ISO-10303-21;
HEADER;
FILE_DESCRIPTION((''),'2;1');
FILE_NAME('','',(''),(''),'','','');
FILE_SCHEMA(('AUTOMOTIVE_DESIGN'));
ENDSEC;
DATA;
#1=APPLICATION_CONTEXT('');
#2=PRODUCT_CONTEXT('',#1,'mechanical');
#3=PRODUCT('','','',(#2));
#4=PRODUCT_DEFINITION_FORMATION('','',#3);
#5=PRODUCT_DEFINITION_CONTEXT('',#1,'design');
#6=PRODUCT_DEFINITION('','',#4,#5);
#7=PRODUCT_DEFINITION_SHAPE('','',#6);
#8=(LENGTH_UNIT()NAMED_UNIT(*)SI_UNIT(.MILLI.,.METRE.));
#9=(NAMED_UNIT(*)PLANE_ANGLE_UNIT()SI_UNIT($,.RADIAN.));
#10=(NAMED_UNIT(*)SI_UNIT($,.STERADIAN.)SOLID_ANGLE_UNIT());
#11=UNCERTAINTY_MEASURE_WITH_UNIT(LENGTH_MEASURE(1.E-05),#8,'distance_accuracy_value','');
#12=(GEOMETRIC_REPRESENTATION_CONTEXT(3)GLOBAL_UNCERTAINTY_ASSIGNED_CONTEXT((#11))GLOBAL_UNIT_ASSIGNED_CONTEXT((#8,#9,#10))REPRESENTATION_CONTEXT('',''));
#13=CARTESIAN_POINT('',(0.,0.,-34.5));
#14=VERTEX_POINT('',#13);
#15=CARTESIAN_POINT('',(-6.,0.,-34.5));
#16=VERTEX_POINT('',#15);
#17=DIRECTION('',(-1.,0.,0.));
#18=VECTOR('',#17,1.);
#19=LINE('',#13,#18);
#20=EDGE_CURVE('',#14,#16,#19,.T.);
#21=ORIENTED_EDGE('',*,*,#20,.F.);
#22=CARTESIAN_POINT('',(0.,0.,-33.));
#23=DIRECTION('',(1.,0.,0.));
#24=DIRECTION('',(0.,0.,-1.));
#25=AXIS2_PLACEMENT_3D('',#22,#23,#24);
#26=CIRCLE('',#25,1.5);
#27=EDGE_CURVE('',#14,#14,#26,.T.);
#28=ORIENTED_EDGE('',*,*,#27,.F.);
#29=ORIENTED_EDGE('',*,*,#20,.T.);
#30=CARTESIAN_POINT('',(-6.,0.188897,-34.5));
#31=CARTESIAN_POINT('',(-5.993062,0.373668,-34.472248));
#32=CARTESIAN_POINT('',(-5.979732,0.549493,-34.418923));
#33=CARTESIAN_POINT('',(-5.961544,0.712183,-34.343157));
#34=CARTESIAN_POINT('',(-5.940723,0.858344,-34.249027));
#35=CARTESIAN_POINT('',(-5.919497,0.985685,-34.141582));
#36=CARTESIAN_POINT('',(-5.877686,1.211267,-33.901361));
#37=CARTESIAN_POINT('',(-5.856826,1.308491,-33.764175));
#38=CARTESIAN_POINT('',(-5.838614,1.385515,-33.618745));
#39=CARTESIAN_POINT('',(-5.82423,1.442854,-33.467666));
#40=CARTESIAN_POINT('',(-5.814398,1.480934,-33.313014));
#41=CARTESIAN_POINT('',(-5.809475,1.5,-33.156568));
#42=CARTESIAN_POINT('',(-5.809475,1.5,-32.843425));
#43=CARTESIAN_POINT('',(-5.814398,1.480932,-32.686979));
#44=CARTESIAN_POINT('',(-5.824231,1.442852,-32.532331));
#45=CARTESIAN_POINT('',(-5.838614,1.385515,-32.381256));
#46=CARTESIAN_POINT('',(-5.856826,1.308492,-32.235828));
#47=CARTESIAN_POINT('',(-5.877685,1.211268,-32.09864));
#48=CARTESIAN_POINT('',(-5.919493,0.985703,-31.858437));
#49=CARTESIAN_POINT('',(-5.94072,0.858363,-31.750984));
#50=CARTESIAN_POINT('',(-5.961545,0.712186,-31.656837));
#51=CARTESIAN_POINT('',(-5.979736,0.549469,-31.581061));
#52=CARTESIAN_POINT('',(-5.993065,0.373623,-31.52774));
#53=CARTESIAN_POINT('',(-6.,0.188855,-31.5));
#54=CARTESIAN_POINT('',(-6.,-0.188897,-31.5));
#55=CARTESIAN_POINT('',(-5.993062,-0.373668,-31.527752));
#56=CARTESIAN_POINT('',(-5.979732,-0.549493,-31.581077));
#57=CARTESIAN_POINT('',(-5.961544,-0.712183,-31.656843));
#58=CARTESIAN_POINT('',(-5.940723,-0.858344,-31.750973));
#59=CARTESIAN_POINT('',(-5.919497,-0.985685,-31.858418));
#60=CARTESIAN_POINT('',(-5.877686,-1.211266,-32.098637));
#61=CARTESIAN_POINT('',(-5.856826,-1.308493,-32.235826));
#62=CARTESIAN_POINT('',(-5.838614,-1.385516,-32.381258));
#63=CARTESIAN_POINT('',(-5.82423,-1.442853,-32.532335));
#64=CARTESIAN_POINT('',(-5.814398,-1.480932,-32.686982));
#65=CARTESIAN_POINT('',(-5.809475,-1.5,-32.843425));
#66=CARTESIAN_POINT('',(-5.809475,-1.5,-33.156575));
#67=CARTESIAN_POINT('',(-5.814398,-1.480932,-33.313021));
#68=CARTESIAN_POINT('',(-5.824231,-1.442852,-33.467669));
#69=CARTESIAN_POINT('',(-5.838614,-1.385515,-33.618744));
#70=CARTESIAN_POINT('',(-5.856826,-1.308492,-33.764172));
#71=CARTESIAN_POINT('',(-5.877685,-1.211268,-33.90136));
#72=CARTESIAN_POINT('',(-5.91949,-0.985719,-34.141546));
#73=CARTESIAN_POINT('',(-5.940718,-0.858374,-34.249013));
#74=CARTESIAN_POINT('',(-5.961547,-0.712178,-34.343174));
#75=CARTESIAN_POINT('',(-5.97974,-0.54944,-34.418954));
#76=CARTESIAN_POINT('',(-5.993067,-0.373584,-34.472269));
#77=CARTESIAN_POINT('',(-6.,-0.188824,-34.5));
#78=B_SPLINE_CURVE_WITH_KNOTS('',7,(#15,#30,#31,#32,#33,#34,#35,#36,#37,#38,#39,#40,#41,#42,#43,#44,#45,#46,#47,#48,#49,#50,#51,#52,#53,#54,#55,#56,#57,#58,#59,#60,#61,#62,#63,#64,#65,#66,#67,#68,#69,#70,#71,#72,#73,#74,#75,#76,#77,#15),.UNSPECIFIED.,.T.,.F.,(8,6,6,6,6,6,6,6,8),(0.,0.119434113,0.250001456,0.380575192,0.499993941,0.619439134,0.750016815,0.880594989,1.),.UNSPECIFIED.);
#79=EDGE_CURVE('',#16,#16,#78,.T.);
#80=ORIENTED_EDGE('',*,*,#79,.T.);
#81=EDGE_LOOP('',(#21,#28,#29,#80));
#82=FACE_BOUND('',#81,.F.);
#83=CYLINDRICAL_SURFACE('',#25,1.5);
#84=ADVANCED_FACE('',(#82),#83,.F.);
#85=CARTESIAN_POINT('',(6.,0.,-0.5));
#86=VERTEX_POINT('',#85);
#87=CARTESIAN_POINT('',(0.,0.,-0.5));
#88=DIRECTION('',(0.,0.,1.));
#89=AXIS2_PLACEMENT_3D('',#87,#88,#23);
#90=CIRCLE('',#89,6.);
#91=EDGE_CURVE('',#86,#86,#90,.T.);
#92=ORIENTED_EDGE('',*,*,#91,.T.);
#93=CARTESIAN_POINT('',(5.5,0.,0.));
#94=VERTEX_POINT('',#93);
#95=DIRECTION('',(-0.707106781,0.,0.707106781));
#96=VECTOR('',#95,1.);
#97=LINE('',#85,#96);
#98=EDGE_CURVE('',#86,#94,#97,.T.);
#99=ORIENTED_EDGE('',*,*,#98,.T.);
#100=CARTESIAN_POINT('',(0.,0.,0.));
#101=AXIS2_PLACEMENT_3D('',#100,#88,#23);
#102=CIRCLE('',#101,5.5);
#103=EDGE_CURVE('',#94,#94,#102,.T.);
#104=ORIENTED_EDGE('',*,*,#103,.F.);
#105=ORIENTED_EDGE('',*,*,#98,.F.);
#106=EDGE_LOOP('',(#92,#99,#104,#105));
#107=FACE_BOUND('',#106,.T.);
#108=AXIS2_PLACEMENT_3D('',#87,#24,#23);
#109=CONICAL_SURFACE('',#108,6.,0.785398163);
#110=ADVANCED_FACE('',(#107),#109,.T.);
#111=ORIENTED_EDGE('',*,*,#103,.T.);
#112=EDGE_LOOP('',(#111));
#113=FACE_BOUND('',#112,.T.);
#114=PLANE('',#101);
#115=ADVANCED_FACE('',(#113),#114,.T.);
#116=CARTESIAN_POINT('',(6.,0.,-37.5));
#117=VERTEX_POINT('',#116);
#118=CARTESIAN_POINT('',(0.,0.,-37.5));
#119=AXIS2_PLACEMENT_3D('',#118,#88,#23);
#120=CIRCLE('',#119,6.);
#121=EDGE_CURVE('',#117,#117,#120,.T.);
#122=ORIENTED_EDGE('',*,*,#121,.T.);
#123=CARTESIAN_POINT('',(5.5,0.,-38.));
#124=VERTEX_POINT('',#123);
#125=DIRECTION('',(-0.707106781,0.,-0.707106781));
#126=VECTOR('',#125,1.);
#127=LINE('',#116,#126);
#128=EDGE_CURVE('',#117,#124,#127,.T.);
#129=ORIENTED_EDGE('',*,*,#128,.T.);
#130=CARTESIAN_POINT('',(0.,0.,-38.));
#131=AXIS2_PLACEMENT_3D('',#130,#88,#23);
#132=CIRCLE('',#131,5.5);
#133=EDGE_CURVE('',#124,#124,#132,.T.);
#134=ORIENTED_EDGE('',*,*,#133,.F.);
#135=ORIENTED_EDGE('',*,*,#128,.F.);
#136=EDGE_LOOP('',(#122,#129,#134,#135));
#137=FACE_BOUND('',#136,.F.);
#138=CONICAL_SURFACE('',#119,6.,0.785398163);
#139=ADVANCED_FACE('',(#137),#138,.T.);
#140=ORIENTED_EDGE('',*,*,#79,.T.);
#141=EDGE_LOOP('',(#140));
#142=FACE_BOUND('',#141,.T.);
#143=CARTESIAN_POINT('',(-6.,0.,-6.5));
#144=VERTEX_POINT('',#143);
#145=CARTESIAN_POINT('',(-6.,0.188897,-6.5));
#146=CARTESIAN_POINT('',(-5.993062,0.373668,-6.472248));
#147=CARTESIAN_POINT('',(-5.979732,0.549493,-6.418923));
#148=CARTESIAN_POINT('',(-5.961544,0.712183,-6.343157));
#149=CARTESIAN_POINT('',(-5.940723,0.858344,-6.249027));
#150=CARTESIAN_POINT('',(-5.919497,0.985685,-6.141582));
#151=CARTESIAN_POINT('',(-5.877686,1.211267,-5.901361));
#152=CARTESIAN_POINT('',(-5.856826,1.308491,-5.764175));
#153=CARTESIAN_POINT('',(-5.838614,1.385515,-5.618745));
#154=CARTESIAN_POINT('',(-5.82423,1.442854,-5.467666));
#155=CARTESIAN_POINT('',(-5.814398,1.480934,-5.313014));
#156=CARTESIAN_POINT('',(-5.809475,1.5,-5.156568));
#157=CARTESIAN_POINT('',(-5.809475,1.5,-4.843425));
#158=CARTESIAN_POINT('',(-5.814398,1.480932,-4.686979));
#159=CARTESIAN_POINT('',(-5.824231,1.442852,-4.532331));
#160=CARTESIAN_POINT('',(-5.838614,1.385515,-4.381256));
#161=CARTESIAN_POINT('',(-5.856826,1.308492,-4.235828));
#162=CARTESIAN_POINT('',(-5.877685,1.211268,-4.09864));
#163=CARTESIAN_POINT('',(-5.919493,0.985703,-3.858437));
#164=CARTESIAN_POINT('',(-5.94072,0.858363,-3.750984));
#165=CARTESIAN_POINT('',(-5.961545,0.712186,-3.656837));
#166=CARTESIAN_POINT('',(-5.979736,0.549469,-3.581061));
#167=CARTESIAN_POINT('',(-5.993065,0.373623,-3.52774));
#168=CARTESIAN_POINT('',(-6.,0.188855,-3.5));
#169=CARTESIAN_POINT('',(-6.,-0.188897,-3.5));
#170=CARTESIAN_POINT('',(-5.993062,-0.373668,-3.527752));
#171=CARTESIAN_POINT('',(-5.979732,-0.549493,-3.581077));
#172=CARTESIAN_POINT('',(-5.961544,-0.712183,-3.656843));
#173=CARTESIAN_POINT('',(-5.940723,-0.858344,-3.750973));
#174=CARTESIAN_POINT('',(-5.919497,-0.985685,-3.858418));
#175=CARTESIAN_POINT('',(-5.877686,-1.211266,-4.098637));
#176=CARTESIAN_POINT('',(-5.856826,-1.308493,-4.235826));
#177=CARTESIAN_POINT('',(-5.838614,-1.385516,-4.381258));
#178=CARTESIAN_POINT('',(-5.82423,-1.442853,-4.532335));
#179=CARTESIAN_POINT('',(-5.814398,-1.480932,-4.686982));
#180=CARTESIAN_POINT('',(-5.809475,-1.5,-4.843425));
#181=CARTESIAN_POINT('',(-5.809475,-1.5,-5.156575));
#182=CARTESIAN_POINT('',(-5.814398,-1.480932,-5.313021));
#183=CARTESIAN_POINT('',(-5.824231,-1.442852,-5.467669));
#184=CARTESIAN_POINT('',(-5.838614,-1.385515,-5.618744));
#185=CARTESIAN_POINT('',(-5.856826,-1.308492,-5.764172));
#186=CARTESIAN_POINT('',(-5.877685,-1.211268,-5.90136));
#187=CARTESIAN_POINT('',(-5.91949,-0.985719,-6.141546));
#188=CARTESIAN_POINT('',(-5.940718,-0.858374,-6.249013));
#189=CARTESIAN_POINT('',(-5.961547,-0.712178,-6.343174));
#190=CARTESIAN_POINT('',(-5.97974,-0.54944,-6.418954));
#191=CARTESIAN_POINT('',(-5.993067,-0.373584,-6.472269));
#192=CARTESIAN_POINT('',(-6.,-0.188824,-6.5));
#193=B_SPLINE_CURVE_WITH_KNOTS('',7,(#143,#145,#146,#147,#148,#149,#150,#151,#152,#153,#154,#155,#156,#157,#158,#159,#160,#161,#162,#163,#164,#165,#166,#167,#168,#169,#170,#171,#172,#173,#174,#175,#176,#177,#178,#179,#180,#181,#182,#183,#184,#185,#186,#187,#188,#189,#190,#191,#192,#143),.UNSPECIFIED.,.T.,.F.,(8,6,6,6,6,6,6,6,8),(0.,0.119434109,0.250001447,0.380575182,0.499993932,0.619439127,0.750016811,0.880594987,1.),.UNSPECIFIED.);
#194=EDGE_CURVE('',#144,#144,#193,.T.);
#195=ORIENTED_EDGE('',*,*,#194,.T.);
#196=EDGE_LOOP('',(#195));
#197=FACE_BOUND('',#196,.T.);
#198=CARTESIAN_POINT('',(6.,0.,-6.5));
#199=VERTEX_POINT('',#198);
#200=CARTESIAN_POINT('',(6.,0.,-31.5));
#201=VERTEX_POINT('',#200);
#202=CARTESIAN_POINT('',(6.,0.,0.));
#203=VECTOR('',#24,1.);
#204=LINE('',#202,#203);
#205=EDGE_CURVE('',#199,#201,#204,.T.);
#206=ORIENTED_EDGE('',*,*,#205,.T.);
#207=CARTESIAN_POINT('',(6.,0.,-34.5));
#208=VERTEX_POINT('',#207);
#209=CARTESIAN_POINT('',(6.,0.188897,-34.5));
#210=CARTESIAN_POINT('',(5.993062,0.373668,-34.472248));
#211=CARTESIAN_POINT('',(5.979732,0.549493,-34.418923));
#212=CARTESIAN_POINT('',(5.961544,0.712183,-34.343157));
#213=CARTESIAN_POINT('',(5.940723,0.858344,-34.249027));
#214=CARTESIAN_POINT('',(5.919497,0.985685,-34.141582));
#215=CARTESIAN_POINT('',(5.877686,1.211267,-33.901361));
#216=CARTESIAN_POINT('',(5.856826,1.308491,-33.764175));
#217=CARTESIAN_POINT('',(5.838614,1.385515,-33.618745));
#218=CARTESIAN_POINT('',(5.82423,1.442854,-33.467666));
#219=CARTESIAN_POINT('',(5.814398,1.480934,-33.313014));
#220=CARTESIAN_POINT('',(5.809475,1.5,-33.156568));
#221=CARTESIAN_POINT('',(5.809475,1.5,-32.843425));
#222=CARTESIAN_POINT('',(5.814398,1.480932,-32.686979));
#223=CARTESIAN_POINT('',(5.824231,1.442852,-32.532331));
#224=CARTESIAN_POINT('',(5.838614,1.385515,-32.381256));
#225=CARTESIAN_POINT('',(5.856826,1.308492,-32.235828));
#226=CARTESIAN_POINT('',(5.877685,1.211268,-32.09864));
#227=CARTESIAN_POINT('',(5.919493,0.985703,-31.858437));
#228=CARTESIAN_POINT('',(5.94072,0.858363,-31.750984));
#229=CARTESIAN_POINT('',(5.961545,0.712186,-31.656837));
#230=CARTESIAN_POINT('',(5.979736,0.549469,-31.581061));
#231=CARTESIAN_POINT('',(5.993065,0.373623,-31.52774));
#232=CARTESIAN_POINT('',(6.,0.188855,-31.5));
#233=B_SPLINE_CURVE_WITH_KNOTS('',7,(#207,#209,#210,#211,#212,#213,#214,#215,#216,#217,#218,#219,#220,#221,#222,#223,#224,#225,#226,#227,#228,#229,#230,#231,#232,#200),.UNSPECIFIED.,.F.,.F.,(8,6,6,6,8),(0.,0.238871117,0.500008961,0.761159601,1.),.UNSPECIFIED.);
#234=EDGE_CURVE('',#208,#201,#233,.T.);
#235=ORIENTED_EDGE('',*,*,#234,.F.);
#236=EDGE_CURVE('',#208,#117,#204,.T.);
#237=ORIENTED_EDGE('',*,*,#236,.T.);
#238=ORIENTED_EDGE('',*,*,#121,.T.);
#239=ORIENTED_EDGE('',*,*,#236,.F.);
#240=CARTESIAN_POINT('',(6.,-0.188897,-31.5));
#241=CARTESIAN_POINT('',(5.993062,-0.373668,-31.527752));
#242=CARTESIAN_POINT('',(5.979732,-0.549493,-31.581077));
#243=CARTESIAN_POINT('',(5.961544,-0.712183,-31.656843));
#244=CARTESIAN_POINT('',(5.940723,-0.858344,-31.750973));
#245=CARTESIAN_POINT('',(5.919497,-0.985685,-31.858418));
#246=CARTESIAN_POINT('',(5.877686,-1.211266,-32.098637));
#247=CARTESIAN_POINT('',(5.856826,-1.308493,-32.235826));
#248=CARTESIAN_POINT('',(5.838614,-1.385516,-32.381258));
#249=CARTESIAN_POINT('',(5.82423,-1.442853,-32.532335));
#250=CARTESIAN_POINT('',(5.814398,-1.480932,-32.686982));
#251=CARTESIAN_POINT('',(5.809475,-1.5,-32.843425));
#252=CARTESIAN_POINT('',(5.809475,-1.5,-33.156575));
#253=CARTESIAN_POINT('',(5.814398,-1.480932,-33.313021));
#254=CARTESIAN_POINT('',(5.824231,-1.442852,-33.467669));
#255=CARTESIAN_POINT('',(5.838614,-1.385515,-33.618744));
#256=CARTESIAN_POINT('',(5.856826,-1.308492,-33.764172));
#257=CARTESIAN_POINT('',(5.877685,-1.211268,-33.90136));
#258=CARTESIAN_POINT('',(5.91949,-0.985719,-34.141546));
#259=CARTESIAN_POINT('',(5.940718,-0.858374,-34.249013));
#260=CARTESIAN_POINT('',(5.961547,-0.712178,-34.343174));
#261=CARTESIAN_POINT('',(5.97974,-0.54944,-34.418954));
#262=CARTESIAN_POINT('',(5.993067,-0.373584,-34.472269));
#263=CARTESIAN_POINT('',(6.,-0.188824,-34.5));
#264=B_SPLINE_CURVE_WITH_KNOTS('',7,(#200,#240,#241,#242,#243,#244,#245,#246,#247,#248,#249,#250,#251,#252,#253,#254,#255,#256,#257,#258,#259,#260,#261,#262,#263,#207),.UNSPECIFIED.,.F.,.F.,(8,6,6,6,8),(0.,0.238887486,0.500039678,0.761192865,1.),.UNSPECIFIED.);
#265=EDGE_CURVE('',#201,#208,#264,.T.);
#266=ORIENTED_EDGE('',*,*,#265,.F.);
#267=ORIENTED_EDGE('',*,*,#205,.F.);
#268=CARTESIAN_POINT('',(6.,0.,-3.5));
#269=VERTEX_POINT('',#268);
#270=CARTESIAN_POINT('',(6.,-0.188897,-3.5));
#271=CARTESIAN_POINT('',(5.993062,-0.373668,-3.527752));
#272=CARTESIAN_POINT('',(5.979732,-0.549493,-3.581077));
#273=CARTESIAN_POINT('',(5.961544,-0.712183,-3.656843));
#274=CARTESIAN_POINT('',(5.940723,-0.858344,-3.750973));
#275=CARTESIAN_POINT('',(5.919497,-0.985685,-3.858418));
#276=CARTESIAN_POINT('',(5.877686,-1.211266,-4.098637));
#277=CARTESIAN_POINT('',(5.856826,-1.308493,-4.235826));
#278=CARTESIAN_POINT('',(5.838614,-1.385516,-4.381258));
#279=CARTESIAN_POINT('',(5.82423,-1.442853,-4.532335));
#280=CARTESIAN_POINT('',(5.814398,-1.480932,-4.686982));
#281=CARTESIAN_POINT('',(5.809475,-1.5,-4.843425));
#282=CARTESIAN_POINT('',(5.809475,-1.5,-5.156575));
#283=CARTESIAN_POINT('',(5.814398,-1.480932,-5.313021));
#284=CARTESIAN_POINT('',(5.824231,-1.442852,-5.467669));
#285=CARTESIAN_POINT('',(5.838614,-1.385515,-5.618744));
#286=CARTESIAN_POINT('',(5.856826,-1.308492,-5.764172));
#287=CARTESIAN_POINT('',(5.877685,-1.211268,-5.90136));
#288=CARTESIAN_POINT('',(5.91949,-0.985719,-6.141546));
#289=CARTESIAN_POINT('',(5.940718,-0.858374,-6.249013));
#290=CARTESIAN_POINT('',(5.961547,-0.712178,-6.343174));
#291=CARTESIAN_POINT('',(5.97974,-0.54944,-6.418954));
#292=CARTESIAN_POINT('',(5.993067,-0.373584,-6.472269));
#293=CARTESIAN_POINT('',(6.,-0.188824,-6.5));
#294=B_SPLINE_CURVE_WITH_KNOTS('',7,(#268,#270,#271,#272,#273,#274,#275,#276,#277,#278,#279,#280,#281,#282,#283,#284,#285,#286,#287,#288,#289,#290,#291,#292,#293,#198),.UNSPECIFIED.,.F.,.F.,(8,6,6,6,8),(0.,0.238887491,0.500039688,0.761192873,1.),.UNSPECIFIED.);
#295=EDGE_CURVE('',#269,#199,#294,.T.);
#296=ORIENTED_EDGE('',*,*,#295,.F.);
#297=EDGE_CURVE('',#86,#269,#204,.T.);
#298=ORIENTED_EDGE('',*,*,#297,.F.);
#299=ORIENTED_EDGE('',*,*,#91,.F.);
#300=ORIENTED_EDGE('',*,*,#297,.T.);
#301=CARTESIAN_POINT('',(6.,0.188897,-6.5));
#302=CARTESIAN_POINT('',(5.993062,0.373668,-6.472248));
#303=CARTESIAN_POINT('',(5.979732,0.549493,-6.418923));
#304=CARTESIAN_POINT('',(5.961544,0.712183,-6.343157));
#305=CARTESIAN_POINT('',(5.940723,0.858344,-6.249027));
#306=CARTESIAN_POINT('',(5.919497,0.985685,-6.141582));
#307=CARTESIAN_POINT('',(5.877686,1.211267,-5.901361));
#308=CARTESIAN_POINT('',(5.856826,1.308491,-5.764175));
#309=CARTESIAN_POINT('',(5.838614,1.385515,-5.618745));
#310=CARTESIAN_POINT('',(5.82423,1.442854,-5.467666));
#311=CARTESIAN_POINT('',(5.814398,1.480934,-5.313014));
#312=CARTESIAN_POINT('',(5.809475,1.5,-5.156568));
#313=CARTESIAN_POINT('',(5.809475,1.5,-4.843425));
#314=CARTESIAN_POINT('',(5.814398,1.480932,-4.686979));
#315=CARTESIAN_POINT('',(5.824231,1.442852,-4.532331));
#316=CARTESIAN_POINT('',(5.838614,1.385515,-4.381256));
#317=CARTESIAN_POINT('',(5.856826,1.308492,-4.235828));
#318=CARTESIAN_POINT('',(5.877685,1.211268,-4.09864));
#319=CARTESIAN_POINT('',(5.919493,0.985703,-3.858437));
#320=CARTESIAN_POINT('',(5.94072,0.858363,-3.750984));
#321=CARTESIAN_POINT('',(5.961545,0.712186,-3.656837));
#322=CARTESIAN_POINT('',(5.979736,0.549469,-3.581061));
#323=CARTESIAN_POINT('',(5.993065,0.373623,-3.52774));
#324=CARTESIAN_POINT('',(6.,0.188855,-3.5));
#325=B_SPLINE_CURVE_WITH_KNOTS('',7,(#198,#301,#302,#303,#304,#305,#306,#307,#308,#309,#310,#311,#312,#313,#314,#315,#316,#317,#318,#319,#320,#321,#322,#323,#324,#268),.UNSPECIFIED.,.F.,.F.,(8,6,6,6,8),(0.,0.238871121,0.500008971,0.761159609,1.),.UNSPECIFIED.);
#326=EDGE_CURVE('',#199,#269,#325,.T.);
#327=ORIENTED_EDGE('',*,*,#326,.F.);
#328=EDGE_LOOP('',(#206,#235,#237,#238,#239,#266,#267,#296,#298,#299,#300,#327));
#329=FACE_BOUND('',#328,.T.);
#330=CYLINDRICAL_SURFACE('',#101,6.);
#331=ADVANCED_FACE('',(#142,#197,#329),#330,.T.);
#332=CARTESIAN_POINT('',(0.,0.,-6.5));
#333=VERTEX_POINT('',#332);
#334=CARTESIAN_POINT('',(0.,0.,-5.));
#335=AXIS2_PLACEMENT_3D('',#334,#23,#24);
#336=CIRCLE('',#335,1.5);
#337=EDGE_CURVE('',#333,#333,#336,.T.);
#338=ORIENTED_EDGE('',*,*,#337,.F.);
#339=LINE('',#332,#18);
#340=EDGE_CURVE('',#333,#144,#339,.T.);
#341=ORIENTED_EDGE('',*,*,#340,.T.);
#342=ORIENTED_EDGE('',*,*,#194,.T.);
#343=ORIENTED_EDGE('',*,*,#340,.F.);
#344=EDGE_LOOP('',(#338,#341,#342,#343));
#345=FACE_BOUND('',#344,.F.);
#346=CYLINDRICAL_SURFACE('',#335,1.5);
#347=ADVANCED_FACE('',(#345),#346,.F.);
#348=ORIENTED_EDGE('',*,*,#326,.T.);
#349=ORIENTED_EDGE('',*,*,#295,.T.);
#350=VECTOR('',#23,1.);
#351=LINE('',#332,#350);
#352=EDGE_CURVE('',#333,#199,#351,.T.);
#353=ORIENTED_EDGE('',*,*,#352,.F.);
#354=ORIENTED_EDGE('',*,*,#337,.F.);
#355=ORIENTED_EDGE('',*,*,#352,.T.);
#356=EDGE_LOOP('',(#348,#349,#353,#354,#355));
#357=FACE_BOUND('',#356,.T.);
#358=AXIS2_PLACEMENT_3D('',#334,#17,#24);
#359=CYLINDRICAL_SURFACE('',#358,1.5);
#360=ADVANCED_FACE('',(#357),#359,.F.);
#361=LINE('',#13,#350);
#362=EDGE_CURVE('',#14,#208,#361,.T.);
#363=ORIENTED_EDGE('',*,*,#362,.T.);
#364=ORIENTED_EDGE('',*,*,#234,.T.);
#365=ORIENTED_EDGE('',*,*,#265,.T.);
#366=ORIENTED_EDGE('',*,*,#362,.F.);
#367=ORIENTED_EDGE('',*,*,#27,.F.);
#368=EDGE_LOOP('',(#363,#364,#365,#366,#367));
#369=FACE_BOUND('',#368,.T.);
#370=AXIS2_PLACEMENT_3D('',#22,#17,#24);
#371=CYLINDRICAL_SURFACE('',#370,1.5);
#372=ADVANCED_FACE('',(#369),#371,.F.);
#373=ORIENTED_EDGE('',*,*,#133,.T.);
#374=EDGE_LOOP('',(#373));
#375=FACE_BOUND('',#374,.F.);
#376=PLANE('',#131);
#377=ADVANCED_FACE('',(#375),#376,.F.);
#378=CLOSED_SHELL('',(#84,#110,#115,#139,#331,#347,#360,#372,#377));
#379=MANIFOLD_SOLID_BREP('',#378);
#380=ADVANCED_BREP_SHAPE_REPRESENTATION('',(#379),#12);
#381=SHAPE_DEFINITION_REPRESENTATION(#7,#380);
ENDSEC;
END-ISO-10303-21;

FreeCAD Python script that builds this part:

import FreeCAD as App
import Part
import Sketcher
from FreeCAD import Vector


def edges_at(feature, points):
    """Names of the edges that pass closest to the given points."""
    edges = feature.Shape.Edges
    near = lambda p: min(range(len(edges)), key=lambda i: edges[i].distToShape(Part.Vertex(*p))[0])
    return sorted({f"Edge{near(p) + 1}" for p in points})

doc = App.newDocument("Part")
body = doc.addObject("PartDesign::Body", "Body")

# Sketch on XY plane
sketch1 = body.newObject("Sketcher::SketchObject", "Sketch")
sketch1.AttachmentSupport = (doc.getObject("XY_Plane"), [""])
sketch1.MapMode = "FlatFace"
sketch1.addGeometry(Part.Circle(Vector(0, 0, 0), Vector(0, 0, 1), 6), False)
sketch1.addConstraint(Sketcher.Constraint("Coincident", 0, 3, -1, 1))
sketch1.addConstraint(Sketcher.Constraint("Diameter", 0, 12.0))
pad1 = body.newObject("PartDesign::Pad", "Pad")
pad1.Profile = sketch1
pad1.Length = 38
pad1.Reversed = True
doc.recompute()

chamfer = body.newObject("PartDesign::Chamfer", "Chamfer")
chamfer.Base = (pad1, edges_at(pad1, [(-6, 0, 0), (-6, 0, -38)]))
chamfer.Size = 0.5

# Sketch on YZ plane
sketch2 = body.newObject("Sketcher::SketchObject", "Sketch001")
sketch2.AttachmentSupport = (doc.getObject("YZ_Plane"), [""])
sketch2.MapMode = "FlatFace"
sketch2.addGeometry(Part.Circle(Vector(0, -5, 0), Vector(0, 0, 1), 1.5), False)
sketch2.addGeometry(Part.Circle(Vector(0, -33, 0), Vector(0, 0, 1), 1.5), False)
sketch2.addConstraint(Sketcher.Constraint("Equal", 0, 1))
sketch2.addConstraint(Sketcher.Constraint("PointOnObject", 0, 3, -2))
sketch2.addConstraint(Sketcher.Constraint("PointOnObject", 1, 3, -2))
sketch2.addConstraint(Sketcher.Constraint("Diameter", 0, 3.0))
sketch2.addConstraint(Sketcher.Constraint("DistanceY", 0, 3, -1, 1, 5.0))
sketch2.addConstraint(Sketcher.Constraint("DistanceY", 1, 3, -1, 1, 33.0))
pocket1 = body.newObject("PartDesign::Pocket", "Pocket")
pocket1.Profile = sketch2
pocket1.Type = "ThroughAll"
pocket1.Midplane = True

doc.recompute()
